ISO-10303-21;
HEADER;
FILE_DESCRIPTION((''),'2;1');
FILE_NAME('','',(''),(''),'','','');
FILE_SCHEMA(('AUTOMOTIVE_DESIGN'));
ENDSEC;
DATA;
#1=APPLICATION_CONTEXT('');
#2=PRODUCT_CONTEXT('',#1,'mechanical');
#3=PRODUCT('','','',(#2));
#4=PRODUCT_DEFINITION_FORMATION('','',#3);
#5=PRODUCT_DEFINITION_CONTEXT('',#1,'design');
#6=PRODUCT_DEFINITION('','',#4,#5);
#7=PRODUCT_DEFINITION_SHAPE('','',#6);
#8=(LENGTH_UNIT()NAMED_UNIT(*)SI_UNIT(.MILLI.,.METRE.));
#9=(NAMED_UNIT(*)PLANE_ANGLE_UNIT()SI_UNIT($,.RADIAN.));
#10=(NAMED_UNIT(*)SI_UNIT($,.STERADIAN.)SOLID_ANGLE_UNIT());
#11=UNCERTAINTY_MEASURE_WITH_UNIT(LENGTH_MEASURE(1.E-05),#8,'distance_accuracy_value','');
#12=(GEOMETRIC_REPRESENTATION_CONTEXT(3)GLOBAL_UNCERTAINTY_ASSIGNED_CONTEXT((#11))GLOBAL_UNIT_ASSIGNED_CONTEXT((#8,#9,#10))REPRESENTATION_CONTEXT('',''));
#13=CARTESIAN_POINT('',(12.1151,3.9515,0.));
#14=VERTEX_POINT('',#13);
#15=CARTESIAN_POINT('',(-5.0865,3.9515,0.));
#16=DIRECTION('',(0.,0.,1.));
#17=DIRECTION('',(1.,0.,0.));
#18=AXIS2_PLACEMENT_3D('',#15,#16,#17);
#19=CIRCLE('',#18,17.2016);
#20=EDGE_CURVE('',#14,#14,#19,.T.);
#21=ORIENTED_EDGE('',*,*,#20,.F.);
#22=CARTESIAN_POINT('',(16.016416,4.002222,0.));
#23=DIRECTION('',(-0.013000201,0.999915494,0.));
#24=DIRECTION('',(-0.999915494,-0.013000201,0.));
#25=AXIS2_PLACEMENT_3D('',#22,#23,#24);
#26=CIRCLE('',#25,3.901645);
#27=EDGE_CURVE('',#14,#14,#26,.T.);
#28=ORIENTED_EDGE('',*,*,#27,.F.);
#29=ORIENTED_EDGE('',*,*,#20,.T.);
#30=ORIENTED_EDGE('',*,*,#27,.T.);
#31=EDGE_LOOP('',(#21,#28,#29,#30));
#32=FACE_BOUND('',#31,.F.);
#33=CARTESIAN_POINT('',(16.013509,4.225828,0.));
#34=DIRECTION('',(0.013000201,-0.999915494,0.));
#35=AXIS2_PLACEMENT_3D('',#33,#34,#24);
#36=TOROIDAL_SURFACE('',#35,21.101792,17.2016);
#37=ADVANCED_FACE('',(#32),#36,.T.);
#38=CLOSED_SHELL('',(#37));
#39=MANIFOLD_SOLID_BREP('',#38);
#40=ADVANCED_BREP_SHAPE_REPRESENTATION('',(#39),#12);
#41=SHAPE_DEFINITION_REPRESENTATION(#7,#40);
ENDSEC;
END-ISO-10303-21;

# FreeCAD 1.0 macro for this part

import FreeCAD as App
import Part
import Sketcher

V = App.Vector

doc = App.newDocument("Part")
params = doc.addObject("Spreadsheet::Sheet", "Params")
for row, (alias, value) in enumerate([
    ("sketch1_length", "10 mm"),
    ("sketch1_width", "0.13 mm"),
    ("revolution_angle", "360 deg"),
], start=1):
    params.set(f"A{row}", alias)
    params.set(f"B{row}", "=" + value)
    params.setAlias(f"B{row}", alias)

body = doc.addObject("PartDesign::Body", "Body")

sketch1 = doc.addObject("Sketcher::SketchObject", "Sketch")
body.addObject(sketch1)
sketch1.AttachmentSupport = (doc.XY_Plane, [""])
sketch1.MapMode = "FlatFace"
sketch1.addGeometry(Part.Circle(V(-5, 4, 0), V(0, 0, 1), 17), False)
sketch1.addGeometry(Part.LineSegment(V(16, 4, 0), V(16, 14, 0)), True)
sketch1.addConstraint(Sketcher.Constraint("Distance", 1, 10.0))
sketch1.addConstraint(Sketcher.Constraint("Diameter", 0, 34.4032))
sketch1.addConstraint(Sketcher.Constraint("DistanceX", 0, 3, 1, 1, 21.1))
sketch1.addConstraint(Sketcher.Constraint("DistanceX", 1, 2, 1, 1, 0.13))
sketch1.addConstraint(Sketcher.Constraint("DistanceY", -1, 1, 1, 2, 14.225))
sketch1.addConstraint(Sketcher.Constraint("DistanceX", 0, 3, -1, 1, 5.0865))
sketch1.addConstraint(Sketcher.Constraint("DistanceY", -1, 1, 0, 3, 3.9515))
sketch1.setExpression("Constraints[0]", "Params.sketch1_length")
sketch1.setExpression("Constraints[3]", "Params.sketch1_width")
revolution = doc.addObject("PartDesign::Revolution", "Revolution")
body.addObject(revolution)
revolution.Profile = sketch1
revolution.ReferenceAxis = (sketch1, ["Axis0"])
revolution.setExpression("Angle", "Params.revolution_angle")

doc.recompute()
